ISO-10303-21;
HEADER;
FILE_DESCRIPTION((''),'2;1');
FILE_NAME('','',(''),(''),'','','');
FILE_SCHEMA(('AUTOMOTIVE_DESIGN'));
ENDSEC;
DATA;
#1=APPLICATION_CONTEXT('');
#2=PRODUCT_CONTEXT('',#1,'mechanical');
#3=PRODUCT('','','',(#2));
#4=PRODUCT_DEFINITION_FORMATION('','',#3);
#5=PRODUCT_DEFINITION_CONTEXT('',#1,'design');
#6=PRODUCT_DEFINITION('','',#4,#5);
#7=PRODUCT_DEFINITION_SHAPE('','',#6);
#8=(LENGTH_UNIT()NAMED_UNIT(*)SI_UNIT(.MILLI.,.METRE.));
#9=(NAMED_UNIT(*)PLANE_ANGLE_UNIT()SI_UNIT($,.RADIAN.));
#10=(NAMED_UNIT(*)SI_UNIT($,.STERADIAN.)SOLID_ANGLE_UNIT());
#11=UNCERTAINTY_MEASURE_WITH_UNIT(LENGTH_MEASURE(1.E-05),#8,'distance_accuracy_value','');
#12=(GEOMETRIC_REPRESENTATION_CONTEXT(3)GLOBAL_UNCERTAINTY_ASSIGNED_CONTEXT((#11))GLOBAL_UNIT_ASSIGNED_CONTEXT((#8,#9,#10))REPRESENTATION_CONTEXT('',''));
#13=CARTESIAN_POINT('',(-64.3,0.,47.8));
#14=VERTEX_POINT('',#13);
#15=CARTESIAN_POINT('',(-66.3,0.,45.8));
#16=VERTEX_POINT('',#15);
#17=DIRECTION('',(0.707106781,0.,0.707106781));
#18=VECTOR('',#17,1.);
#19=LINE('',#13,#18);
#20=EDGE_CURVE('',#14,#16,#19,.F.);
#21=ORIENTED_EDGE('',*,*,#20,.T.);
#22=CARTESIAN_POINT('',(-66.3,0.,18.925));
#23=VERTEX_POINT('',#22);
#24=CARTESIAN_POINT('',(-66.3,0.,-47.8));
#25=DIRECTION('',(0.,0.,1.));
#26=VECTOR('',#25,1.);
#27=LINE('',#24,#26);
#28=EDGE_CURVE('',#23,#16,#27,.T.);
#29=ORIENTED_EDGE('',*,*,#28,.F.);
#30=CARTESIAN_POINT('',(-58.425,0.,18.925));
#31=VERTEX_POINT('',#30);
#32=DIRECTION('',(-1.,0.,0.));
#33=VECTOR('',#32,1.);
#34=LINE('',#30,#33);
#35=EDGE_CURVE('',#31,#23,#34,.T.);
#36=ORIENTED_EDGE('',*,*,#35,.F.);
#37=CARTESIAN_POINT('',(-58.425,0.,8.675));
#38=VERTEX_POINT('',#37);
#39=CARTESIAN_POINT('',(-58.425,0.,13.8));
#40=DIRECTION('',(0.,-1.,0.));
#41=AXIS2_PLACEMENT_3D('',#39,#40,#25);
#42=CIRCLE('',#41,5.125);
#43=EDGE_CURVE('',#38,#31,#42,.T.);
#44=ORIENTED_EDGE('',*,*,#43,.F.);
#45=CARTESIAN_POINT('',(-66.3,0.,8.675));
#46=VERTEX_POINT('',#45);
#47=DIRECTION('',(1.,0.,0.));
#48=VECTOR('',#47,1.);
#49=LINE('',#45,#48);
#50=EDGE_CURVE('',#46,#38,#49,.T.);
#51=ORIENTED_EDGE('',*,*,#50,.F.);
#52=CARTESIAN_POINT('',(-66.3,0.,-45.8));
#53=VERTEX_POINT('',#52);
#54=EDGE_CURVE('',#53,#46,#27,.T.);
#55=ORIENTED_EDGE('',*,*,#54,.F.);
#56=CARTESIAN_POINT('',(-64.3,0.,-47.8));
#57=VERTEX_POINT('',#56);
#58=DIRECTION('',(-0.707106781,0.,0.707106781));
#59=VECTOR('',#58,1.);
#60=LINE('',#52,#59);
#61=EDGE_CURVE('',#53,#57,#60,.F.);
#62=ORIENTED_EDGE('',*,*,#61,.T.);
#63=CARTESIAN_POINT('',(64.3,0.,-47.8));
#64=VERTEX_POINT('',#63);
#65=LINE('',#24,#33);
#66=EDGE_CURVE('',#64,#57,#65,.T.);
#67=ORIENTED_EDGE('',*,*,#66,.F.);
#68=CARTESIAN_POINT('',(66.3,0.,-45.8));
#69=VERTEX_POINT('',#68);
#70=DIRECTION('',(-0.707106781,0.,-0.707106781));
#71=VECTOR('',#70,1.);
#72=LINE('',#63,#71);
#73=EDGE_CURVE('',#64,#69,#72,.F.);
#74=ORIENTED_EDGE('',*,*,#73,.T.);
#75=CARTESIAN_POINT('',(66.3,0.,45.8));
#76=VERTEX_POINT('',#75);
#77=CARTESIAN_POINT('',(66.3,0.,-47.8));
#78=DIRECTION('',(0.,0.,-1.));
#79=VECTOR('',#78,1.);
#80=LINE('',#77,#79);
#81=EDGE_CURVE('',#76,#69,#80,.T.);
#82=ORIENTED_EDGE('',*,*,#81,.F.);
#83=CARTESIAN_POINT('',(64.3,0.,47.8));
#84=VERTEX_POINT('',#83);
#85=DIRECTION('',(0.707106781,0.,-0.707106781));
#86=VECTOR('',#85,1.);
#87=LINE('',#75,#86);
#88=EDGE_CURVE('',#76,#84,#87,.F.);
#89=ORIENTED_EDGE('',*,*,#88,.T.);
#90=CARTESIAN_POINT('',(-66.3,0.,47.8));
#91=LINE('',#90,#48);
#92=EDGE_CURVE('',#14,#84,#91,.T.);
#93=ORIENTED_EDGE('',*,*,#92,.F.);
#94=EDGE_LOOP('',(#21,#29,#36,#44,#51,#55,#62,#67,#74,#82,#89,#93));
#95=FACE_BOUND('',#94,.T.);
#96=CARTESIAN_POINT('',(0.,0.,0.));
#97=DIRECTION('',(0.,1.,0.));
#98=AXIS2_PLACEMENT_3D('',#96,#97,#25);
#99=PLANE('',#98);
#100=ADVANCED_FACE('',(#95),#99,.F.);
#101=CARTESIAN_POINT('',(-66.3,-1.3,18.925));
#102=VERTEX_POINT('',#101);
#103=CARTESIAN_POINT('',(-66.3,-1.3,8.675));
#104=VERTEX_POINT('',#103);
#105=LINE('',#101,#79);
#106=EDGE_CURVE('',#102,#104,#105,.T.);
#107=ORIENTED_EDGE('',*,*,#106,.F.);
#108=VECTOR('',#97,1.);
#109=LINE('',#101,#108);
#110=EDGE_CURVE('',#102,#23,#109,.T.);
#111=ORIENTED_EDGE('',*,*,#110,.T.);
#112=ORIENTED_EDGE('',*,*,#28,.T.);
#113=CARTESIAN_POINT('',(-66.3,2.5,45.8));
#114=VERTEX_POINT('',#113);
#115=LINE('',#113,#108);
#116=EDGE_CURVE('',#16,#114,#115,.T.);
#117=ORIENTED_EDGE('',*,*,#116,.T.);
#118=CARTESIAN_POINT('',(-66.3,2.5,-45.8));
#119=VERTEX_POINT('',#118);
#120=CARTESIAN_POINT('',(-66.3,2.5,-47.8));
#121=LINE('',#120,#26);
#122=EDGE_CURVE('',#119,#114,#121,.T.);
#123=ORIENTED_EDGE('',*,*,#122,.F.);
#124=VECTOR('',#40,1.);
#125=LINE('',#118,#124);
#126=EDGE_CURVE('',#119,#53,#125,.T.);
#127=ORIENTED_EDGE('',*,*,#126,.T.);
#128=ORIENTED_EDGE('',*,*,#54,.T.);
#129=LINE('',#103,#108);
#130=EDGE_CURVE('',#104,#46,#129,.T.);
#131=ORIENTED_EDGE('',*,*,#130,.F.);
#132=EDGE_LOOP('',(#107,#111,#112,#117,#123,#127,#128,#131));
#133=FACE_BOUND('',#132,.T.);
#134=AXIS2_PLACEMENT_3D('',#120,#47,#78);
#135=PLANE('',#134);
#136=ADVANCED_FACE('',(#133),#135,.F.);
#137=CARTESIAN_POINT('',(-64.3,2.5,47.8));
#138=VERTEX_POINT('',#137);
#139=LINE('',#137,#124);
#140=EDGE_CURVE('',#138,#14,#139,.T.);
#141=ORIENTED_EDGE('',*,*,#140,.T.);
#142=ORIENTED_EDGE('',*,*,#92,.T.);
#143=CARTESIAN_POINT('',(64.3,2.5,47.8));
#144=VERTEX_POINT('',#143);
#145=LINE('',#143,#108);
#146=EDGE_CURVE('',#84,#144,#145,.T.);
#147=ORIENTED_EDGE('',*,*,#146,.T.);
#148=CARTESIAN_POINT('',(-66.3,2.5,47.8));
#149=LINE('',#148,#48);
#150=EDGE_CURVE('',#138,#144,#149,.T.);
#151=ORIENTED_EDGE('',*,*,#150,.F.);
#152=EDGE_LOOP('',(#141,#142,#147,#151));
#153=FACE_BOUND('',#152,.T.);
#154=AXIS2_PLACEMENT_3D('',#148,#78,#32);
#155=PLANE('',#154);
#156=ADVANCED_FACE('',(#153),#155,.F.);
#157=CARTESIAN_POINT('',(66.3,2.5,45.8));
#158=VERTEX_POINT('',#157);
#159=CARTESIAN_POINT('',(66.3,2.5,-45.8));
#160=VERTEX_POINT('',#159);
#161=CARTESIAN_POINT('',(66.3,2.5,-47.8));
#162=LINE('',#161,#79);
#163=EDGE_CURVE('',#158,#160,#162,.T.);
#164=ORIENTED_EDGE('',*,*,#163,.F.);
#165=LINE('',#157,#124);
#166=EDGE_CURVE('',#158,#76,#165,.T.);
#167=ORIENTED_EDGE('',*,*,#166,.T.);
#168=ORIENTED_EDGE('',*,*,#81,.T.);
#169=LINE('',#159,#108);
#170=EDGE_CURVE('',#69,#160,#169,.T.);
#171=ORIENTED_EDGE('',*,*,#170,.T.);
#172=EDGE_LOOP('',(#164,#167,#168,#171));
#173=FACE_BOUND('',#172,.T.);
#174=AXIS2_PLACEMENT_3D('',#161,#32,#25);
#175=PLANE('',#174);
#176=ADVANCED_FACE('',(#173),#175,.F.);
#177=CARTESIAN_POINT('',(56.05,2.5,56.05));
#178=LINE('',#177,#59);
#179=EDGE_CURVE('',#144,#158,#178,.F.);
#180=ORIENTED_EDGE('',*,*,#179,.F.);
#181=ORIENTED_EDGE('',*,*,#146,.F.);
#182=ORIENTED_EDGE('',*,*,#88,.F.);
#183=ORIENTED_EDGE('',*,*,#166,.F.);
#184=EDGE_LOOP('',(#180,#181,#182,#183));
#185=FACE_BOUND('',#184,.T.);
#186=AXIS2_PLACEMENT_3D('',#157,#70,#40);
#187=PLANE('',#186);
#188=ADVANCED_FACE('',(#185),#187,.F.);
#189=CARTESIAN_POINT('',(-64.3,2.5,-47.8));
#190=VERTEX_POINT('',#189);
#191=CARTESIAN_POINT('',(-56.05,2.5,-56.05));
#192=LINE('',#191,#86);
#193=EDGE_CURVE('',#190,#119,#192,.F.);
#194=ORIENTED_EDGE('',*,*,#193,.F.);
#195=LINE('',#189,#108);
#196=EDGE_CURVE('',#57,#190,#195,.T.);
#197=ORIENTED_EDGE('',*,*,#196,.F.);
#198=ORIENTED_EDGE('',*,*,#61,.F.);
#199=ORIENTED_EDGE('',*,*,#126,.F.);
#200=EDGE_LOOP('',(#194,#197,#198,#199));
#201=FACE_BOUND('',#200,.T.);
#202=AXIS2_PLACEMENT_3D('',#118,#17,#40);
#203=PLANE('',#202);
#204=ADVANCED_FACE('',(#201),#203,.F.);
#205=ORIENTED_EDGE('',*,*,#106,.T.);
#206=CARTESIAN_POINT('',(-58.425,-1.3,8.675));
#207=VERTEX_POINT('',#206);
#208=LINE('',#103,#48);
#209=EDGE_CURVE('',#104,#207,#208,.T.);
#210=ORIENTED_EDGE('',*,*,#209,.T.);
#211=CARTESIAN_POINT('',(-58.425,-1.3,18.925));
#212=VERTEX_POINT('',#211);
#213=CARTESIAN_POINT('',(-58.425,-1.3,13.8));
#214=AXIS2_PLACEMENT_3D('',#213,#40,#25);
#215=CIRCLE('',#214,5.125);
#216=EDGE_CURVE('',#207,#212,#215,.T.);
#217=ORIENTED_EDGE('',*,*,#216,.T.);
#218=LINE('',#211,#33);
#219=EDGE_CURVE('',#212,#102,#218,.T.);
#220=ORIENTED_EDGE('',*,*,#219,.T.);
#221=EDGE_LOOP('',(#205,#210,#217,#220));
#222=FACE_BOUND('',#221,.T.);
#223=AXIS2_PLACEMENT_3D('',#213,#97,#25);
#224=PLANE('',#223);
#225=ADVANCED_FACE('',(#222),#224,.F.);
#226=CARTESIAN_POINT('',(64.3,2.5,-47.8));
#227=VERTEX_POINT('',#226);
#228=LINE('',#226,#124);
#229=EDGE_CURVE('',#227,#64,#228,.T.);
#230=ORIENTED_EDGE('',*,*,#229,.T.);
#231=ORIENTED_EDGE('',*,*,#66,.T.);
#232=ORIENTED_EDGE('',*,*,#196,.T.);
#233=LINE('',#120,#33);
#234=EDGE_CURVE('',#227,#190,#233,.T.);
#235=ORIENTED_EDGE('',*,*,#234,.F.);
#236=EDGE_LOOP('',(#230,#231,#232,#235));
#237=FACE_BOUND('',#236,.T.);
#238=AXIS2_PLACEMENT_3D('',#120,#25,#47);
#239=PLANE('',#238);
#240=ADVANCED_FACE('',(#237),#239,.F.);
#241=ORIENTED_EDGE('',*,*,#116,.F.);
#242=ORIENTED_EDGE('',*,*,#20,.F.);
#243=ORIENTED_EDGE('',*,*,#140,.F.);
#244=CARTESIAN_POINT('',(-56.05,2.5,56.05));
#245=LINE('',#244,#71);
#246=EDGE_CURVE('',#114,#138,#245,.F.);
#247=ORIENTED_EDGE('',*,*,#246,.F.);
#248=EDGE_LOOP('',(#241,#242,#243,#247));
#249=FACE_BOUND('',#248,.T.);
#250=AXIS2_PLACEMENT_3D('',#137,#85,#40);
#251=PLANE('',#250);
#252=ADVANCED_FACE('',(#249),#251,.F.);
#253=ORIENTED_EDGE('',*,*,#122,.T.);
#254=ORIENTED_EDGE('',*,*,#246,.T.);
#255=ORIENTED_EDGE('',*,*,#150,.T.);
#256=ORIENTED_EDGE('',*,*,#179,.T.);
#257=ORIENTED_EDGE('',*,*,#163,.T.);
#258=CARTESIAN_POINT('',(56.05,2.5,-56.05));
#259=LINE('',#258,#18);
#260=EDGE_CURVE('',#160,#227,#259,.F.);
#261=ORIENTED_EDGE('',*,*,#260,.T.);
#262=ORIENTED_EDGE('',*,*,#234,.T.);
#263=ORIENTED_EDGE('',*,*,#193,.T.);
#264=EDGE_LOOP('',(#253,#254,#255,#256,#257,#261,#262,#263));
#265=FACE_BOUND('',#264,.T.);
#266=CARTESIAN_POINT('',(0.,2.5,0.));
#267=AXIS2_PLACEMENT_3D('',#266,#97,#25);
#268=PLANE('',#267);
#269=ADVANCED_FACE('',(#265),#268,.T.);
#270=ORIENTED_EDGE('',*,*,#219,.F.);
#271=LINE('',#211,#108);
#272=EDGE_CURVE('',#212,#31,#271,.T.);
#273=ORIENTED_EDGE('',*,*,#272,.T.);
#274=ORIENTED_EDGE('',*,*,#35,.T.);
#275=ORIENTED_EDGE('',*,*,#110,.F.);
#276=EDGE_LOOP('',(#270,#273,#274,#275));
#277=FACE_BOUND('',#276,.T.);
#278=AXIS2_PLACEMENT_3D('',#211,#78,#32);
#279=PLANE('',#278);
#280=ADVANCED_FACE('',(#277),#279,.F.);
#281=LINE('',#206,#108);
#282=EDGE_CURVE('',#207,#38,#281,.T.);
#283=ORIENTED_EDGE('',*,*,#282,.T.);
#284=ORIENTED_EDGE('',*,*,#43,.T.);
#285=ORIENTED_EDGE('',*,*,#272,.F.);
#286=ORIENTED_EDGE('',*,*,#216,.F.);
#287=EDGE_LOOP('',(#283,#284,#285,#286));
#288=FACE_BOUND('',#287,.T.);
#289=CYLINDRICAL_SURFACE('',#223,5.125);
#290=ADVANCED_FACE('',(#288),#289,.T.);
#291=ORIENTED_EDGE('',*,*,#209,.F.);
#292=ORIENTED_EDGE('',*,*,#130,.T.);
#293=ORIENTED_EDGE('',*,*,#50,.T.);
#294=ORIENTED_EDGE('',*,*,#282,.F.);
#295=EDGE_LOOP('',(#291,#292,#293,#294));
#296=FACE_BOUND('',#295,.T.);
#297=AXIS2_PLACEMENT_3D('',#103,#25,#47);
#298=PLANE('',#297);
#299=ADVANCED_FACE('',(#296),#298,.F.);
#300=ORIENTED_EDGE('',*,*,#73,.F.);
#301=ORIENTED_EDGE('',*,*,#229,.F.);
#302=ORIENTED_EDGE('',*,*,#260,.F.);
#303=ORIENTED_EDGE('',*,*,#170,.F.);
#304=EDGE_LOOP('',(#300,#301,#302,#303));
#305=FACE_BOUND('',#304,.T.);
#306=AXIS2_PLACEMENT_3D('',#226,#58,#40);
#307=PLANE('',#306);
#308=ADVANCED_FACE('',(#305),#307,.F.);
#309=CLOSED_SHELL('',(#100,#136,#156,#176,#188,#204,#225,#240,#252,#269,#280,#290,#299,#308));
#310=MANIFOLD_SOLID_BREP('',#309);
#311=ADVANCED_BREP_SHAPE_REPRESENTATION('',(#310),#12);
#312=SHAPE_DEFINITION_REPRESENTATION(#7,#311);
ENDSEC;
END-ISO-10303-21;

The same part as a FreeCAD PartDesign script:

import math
import FreeCAD as App
import Part
import Sketcher

V = App.Vector
Q = App.Units.Quantity


def edges_at(feature, points):
    """Names of the edges that pass closest to the given points."""
    edges = feature.Shape.Edges
    near = lambda p: min(range(len(edges)), key=lambda i: edges[i].distToShape(Part.Vertex(*p))[0])
    return sorted({f"Edge{near(p) + 1}" for p in points})


def add_polygon(sketch, points):
    """Adds a closed chain of lines whose ends are joined by coincident constraints."""
    first, n = sketch.GeometryCount, len(points)
    for a, b in zip(points, points[1:] + points[:1]):
        sketch.addGeometry(Part.LineSegment(App.Vector(*a, 0), App.Vector(*b, 0)), False)
    for i in range(n):
        sketch.addConstraint(Sketcher.Constraint("Coincident", first + i, 2, first + (i + 1) % n, 1))

doc = App.newDocument("Part")
params = doc.addObject("Spreadsheet::Sheet", "Params")
for row, (alias, value) in enumerate([
    ("sketch1_width", "132.6 mm"),
    ("sketch1_height", "95.6 mm"),
    ("pad1_length", "2.5 mm"),
    ("chamfer_size", "2 mm"),
    ("pad2_length", "1.3 mm"),
], start=1):
    params.set(f"A{row}", alias)
    params.set(f"B{row}", "=" + value)
    params.setAlias(f"B{row}", alias)

body = doc.addObject("PartDesign::Body", "Body")

# Sketch on XZ plane
sketch1 = doc.addObject("Sketcher::SketchObject", "Sketch")
body.addObject(sketch1)
sketch1.AttachmentSupport = (doc.XZ_Plane, [""])
sketch1.MapMode = "FlatFace"
add_polygon(sketch1, [(-66, -48), (-66, 48), (66, 48), (66, -48)])  # lines 0-3
sketch1.addConstraint([
    Sketcher.Constraint("Vertical", 0),
    Sketcher.Constraint("Horizontal", 1),
    Sketcher.Constraint("Vertical", 2),
    Sketcher.Constraint("Horizontal", 3),
    Sketcher.Constraint("Symmetric", 0, 2, 2, 2, -1, 1),
    Sketcher.Constraint("DistanceX", 1, 1, 1, 2, Q("132.6 mm")),
    Sketcher.Constraint("DistanceY", 0, 1, 0, 2, Q("95.6 mm")),
])
sketch1.setExpression("Constraints[9]", "Params.sketch1_width")
sketch1.setExpression("Constraints[10]", "Params.sketch1_height")
pad1 = doc.addObject("PartDesign::Pad", "Pad")
body.addObject(pad1)
pad1.Profile = sketch1
pad1.setExpression("Length", "Params.pad1_length")
pad1.Reversed = True
doc.recompute()

chamfer = doc.addObject("PartDesign::Chamfer", "Chamfer")
body.addObject(chamfer)
chamfer.Base = (pad1, edges_at(pad1, [
    (66.3, 1.25, 47.8),
    (-66.3, 1.25, 47.8),
    (-66.3, 1.25, -47.8),
    (66.3, 1.25, -47.8),
]))
chamfer.setExpression("Size", "Params.chamfer_size")

# Sketch on XZ plane
sketch2 = doc.addObject("Sketcher::SketchObject", "Sketch001")
body.addObject(sketch2)
sketch2.AttachmentSupport = (doc.XZ_Plane, [""])
sketch2.MapMode = "FlatFace"
sketch2.addGeometry([
    Part.LineSegment(V(-58, 19, 0), V(-66, 19, 0)),
    Part.LineSegment(V(-66, 19, 0), V(-66, 9, 0)),
    Part.LineSegment(V(-66, 9, 0), V(-58, 9, 0)),
    Part.ArcOfCircle(Part.Circle(V(-58, 14, 0), V(0, 0, 1), 5), math.radians(-90), math.radians(90)),
], False)
sketch2.addConstraint([
    Sketcher.Constraint("Coincident", 0, 2, 1, 1),
    Sketcher.Constraint("Coincident", 1, 2, 2, 1),
    Sketcher.Constraint("Tangent", 2, 2, 3, 1),
    Sketcher.Constraint("Tangent", 3, 2, 0, 1),
    Sketcher.Constraint("Horizontal", 0),
    Sketcher.Constraint("Vertical", 1),
    Sketcher.Constraint("Horizontal", 2),
    Sketcher.Constraint("Radius", 3, Q("5.125 mm")),
    Sketcher.Constraint("DistanceY", -1, 1, 3, 3, Q("13.8 mm")),
    Sketcher.Constraint("DistanceX", 0, 2, -1, 1, Q("66.3 mm")),
    Sketcher.Constraint("DistanceX", 0, 2, 0, 1, Q("7.875 mm")),
])
pad2 = doc.addObject("PartDesign::Pad", "Pad001")
body.addObject(pad2)
pad2.Profile = sketch2
pad2.setExpression("Length", "Params.pad2_length")

doc.recompute()
